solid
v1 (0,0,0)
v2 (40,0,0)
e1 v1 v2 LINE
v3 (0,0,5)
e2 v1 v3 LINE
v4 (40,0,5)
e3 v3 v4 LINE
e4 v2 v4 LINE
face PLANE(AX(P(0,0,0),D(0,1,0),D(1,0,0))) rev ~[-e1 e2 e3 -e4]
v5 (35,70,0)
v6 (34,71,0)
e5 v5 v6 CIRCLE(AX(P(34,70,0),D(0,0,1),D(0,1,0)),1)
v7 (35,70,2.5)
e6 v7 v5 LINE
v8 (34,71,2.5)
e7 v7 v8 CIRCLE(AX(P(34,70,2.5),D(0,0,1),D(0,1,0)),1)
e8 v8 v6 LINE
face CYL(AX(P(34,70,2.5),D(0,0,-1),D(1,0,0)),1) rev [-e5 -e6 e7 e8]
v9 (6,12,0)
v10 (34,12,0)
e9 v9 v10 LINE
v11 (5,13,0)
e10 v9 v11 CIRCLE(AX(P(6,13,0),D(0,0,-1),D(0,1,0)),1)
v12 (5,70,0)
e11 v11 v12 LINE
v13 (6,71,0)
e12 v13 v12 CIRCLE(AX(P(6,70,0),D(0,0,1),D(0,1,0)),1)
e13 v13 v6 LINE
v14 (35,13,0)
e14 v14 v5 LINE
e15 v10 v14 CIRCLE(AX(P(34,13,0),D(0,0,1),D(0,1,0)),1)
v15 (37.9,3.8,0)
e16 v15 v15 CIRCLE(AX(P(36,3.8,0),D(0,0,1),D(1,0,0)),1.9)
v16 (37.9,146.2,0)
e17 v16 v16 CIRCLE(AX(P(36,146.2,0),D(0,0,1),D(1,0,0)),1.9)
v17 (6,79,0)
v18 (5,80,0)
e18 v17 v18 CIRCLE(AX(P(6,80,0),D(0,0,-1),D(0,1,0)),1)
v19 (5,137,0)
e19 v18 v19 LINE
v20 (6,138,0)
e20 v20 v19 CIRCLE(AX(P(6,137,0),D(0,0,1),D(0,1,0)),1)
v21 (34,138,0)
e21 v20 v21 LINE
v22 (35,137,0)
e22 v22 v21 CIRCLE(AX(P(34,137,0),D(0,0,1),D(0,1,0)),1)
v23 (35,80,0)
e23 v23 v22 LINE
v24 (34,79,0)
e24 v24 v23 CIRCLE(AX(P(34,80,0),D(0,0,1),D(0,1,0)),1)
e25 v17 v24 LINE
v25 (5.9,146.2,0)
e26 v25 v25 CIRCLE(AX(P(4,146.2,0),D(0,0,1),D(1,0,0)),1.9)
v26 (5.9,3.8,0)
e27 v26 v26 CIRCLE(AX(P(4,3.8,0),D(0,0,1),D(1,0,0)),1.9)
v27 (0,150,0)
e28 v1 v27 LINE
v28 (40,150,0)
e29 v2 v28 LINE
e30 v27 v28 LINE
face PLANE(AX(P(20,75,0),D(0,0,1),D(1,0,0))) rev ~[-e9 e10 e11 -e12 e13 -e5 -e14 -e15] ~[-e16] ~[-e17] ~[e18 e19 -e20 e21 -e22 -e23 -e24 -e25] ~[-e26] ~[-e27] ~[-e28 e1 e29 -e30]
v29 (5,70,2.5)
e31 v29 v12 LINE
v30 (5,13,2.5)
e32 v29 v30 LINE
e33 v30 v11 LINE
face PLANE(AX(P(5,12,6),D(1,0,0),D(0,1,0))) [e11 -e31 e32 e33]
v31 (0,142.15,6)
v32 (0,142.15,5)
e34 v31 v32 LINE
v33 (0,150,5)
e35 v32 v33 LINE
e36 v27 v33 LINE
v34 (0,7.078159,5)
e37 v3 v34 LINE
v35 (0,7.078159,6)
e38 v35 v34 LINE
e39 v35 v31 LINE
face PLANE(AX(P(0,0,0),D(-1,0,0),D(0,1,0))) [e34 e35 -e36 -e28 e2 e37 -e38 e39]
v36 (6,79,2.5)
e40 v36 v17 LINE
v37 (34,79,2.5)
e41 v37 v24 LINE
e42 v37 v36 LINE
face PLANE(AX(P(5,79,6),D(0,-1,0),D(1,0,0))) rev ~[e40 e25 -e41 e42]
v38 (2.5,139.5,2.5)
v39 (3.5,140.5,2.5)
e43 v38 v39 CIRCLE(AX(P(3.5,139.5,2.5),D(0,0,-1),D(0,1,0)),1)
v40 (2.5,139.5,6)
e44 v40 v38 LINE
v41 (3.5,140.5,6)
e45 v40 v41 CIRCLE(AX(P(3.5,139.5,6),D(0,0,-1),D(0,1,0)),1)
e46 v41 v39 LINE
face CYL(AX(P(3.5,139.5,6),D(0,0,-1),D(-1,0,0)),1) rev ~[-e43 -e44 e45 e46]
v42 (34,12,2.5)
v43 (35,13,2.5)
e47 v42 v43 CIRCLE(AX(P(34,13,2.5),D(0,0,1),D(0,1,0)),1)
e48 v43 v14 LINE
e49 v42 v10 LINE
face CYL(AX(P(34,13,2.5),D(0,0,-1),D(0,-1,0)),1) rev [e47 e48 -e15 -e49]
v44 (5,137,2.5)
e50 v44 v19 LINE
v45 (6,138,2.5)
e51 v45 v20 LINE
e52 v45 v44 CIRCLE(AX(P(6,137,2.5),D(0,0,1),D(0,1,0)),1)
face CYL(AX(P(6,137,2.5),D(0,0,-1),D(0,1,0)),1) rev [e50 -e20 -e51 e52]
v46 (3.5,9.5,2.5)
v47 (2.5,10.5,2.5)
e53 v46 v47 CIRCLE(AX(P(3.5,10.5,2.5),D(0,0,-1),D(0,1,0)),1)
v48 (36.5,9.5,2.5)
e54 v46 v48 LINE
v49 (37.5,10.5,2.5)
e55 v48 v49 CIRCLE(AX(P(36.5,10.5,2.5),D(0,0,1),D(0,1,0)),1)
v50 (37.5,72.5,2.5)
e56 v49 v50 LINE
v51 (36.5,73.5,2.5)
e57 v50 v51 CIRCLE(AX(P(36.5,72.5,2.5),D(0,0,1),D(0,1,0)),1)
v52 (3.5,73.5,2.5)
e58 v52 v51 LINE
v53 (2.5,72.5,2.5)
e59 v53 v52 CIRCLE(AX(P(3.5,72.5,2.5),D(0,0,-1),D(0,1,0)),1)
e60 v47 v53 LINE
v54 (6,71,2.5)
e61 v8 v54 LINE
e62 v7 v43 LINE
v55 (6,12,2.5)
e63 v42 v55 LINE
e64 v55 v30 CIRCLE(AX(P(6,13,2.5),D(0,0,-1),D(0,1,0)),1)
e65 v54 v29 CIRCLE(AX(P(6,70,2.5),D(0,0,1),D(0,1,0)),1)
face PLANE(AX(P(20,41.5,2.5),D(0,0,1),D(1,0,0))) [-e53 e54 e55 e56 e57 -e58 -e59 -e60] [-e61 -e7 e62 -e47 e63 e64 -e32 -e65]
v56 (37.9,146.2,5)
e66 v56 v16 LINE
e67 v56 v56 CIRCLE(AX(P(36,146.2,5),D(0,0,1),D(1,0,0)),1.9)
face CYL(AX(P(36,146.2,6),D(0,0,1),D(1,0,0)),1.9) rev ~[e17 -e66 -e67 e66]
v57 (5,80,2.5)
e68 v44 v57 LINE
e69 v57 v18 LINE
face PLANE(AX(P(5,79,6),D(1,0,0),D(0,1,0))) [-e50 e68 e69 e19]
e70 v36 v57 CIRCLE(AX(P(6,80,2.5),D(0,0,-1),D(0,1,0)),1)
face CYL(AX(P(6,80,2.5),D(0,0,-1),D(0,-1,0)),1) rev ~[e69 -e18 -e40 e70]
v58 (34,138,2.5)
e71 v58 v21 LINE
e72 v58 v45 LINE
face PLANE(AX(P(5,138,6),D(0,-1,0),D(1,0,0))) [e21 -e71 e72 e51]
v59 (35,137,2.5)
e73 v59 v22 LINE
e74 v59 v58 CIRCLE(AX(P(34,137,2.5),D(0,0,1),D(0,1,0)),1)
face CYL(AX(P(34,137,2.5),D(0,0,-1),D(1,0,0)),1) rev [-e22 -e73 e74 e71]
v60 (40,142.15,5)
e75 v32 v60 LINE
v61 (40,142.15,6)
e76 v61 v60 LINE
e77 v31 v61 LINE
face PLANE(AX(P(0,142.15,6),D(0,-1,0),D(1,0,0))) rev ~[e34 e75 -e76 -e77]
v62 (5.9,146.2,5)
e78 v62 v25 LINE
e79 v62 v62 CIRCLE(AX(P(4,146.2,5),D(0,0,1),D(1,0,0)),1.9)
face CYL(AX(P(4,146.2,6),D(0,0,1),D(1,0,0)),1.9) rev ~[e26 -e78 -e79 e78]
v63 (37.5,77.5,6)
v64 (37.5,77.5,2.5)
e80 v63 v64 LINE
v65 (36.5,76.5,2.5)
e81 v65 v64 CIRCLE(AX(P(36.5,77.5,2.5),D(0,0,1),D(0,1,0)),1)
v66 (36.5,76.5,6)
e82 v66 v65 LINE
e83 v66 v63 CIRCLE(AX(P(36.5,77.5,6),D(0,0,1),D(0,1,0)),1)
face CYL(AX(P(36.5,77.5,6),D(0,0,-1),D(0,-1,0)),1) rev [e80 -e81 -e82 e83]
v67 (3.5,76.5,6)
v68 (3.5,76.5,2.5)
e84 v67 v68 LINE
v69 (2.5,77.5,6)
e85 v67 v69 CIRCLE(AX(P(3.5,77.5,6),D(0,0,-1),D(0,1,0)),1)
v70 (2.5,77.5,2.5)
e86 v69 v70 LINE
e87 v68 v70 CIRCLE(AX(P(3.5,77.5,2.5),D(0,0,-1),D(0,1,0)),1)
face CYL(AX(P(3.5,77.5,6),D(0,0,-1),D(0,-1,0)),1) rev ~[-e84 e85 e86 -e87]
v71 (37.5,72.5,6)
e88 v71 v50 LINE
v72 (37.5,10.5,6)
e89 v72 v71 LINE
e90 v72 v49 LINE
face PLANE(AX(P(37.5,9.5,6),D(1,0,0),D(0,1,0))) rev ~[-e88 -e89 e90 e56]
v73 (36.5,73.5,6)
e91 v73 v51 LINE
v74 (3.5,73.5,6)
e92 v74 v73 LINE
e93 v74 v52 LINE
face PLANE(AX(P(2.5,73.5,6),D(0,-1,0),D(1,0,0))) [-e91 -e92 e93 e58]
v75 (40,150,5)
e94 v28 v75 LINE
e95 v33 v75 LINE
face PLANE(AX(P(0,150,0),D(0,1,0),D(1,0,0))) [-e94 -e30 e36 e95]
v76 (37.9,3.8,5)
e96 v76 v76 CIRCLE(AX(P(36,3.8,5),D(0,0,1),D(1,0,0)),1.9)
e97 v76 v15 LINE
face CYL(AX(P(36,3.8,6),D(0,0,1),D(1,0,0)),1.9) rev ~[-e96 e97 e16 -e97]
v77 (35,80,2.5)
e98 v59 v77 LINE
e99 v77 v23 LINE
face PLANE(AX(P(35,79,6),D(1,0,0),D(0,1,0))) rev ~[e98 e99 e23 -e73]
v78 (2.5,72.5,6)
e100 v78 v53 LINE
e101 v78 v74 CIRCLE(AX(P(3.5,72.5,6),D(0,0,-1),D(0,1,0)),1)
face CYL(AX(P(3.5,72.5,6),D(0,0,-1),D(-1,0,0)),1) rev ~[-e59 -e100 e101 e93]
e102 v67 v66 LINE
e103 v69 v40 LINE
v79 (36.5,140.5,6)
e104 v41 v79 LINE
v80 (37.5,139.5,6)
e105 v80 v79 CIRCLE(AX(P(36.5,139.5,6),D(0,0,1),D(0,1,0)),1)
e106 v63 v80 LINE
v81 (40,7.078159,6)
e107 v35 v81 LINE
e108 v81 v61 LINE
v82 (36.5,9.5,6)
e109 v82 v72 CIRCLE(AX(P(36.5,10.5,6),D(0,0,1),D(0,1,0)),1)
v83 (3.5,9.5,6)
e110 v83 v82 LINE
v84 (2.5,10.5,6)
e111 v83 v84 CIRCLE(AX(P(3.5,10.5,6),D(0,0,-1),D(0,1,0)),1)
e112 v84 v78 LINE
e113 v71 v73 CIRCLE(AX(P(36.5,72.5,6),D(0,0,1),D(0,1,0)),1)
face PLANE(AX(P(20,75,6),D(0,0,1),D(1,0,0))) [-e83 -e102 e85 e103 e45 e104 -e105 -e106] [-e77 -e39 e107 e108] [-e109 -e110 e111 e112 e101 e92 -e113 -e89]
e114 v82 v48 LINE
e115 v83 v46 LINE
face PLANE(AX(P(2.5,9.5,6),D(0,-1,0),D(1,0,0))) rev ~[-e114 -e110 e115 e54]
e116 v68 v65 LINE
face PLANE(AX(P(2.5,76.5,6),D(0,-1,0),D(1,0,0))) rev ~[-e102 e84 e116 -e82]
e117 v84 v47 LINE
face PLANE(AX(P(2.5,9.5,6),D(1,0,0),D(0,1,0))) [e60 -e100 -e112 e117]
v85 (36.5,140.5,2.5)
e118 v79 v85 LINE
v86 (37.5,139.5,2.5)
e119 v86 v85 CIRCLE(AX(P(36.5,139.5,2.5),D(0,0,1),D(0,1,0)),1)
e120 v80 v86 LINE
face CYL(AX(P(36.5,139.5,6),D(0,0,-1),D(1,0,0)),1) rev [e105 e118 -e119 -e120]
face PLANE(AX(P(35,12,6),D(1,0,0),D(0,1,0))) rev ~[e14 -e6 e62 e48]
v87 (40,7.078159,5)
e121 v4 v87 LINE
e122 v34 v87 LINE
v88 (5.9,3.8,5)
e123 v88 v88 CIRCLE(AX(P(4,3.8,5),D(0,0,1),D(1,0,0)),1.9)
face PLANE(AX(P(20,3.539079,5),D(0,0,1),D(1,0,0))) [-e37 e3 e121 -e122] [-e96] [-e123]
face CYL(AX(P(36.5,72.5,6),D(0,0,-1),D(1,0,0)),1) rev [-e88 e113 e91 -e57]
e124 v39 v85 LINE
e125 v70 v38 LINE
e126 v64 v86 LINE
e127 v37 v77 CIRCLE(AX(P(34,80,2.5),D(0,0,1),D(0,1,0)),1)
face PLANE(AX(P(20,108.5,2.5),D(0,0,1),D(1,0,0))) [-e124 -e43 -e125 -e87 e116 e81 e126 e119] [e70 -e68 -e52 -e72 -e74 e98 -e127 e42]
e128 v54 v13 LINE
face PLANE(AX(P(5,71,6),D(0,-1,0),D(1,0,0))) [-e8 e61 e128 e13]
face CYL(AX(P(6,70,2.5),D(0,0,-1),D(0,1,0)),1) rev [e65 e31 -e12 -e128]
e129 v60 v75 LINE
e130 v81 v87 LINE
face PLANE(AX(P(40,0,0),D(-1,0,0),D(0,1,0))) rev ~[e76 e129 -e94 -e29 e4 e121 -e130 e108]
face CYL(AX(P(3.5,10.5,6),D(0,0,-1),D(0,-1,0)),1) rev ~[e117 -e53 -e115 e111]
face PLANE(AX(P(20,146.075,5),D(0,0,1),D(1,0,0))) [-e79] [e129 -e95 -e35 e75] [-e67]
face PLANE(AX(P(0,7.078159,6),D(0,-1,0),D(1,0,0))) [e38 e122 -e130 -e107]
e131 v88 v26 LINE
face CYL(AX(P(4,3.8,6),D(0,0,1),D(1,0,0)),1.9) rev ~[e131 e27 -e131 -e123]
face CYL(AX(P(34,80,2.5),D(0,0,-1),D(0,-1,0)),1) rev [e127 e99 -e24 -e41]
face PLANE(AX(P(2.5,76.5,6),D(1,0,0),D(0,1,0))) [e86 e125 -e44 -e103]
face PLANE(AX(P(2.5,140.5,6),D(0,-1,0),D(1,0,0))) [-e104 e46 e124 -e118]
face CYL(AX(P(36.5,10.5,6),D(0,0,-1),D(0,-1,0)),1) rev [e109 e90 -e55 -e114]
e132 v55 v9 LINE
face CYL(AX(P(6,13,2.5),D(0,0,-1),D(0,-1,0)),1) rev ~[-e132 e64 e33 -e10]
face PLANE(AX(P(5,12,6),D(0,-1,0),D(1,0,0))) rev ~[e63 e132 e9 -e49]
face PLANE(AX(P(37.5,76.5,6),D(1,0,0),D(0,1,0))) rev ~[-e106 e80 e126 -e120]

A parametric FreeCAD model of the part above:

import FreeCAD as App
import Part
import Sketcher

V = App.Vector


def edges_at(feature, points):
    """Names of the edges that pass closest to the given points."""
    edges = feature.Shape.Edges
    near = lambda p: min(range(len(edges)), key=lambda i: edges[i].distToShape(Part.Vertex(*p))[0])
    return sorted({f"Edge{near(p) + 1}" for p in points})


def add_polygon(sketch, points):
    """Adds a closed chain of lines whose ends are joined by coincident constraints."""
    first, n = sketch.GeometryCount, len(points)
    for a, b in zip(points, points[1:] + points[:1]):
        sketch.addGeometry(Part.LineSegment(App.Vector(*a, 0), App.Vector(*b, 0)), False)
    for i in range(n):
        sketch.addConstraint(Sketcher.Constraint("Coincident", first + i, 2, first + (i + 1) % n, 1))

doc = App.newDocument("Part")
body = doc.addObject("PartDesign::Body", "Body")

# Sketch on XY plane
sketch1 = doc.addObject("Sketcher::SketchObject", "Sketch")
body.addObject(sketch1)
sketch1.AttachmentSupport = (doc.XY_Plane, [""])
sketch1.MapMode = "FlatFace"
add_polygon(sketch1, [(0, 150), (0, 0), (40, 0), (40, 150)])  # lines 0-3
sketch1.addConstraint([
    Sketcher.Constraint("Vertical", 0),
    Sketcher.Constraint("Horizontal", 1),
    Sketcher.Constraint("Vertical", 2),
    Sketcher.Constraint("Horizontal", 3),
    Sketcher.Constraint("Coincident", 0, 2, -1, 1),
    Sketcher.Constraint("DistanceX", 1, 1, 1, 2, 40.0),
    Sketcher.Constraint("DistanceY", 0, 2, 0, 1, 150.0),
])
pad1 = doc.addObject("PartDesign::Pad", "Pad")
body.addObject(pad1)
pad1.Profile = sketch1
pad1.Length = 6

# Sketch on XY plane
sketch2 = doc.addObject("Sketcher::SketchObject", "Sketch001")
body.addObject(sketch2)
sketch2.AttachmentSupport = (doc.XY_Plane, [""])
sketch2.MapMode = "FlatFace"
sketch2.AttachmentOffset = App.Placement(V(0, 0, 6), App.Rotation())
sketch2.addGeometry([
    Part.Circle(V(36, 146.2, 0), V(0, 0, 1), 1.9),
    Part.Circle(V(4, 146.2, 0), V(0, 0, 1), 1.9),
    Part.Circle(V(4, 3.8, 0), V(0, 0, 1), 1.9),
    Part.Circle(V(36, 3.8, 0), V(0, 0, 1), 1.9),
], False)
sketch2.addConstraint([
    Sketcher.Constraint("Equal", 0, 1),
    Sketcher.Constraint("Equal", 1, 2),
    Sketcher.Constraint("Equal", 2, 3),
    Sketcher.Constraint("Horizontal", 0, 3, 1, 3),
    Sketcher.Constraint("Horizontal", 2, 3, 3, 3),
    Sketcher.Constraint("Vertical", 1, 3, 2, 3),
    Sketcher.Constraint("Vertical", 0, 3, 3, 3),
    Sketcher.Constraint("Diameter", 0, 3.8),
    Sketcher.Constraint("DistanceX", -1, 1, 0, 3, 36.0),
    Sketcher.Constraint("DistanceX", -1, 1, 1, 3, 4.0),
    Sketcher.Constraint("DistanceY", -1, 1, 0, 3, 146.2),
    Sketcher.Constraint("DistanceY", -1, 1, 2, 3, 3.8),
])
pocket1 = doc.addObject("PartDesign::Pocket", "Pocket")
body.addObject(pocket1)
pocket1.Profile = sketch2
pocket1.Type = "ThroughAll"

# Sketch on XY plane
sketch3 = doc.addObject("Sketcher::SketchObject", "Sketch002")
body.addObject(sketch3)
sketch3.AttachmentSupport = (doc.XY_Plane, [""])
sketch3.MapMode = "FlatFace"
sketch3.AttachmentOffset = App.Placement(V(0, 0, 6), App.Rotation())
add_polygon(sketch3, [(5, 138), (5, 79), (35, 79), (35, 138)])  # lines 0-3
add_polygon(sketch3, [(5, 71), (5, 12), (35, 12), (35, 71)])  # lines 4-7
sketch3.addConstraint([
    Sketcher.Constraint("Vertical", 0),
    Sketcher.Constraint("Horizontal", 1),
    Sketcher.Constraint("Vertical", 2),
    Sketcher.Constraint("Horizontal", 3),
    Sketcher.Constraint("Vertical", 4),
    Sketcher.Constraint("Horizontal", 5),
    Sketcher.Constraint("Vertical", 6),
    Sketcher.Constraint("Horizontal", 7),
    Sketcher.Constraint("Vertical", 3, 2, 4, 2),
    Sketcher.Constraint("Vertical", 2, 2, 5, 2),
    Sketcher.Constraint("Equal", 2, 4),
    Sketcher.Constraint("DistanceX", 1, 1, 1, 2, 30.0),
    Sketcher.Constraint("DistanceY", 0, 2, 0, 1, 59.0),
    Sketcher.Constraint("DistanceX", -1, 1, 0, 2, 5.0),
    Sketcher.Constraint("DistanceY", -1, 1, 0, 2, 79.0),
    Sketcher.Constraint("DistanceY", -1, 1, 4, 2, 12.0),
])
pocket2 = doc.addObject("PartDesign::Pocket", "Pocket001")
body.addObject(pocket2)
pocket2.Profile = sketch3
pocket2.Type = "ThroughAll"

# Sketch on XY plane
sketch4 = doc.addObject("Sketcher::SketchObject", "Sketch003")
body.addObject(sketch4)
sketch4.AttachmentSupport = (doc.XY_Plane, [""])
sketch4.MapMode = "FlatFace"
sketch4.AttachmentOffset = App.Placement(V(0, 0, 6), App.Rotation())
add_polygon(sketch4, [(2, 140), (2, 76), (38, 76), (38, 140)])  # lines 0-3
add_polygon(sketch4, [(2, 74), (2, 10), (38, 10), (38, 74)])  # lines 4-7
sketch4.addConstraint([
    Sketcher.Constraint("Vertical", 0),
    Sketcher.Constraint("Horizontal", 1),
    Sketcher.Constraint("Vertical", 2),
    Sketcher.Constraint("Horizontal", 3),
    Sketcher.Constraint("Vertical", 4),
    Sketcher.Constraint("Horizontal", 5),
    Sketcher.Constraint("Vertical", 6),
    Sketcher.Constraint("Horizontal", 7),
    Sketcher.Constraint("Vertical", 3, 2, 4, 2),
    Sketcher.Constraint("Vertical", 2, 2, 5, 2),
    Sketcher.Constraint("Equal", 2, 4),
    Sketcher.Constraint("DistanceX", 1, 1, 1, 2, 35.0),
    Sketcher.Constraint("DistanceY", 0, 2, 0, 1, 64.0),
    Sketcher.Constraint("DistanceY", 4, 2, 0, 2, 67.0),
    Sketcher.Constraint("DistanceX", -1, 1, 0, 2, 2.5),
    Sketcher.Constraint("DistanceY", -1, 1, 0, 2, 76.5),
])
pocket3 = doc.addObject("PartDesign::Pocket", "Pocket002")
body.addObject(pocket3)
pocket3.Profile = sketch4
pocket3.Length = 3.5

# Sketch on XY plane
sketch5 = doc.addObject("Sketcher::SketchObject", "Sketch004")
body.addObject(sketch5)
sketch5.AttachmentSupport = (doc.XY_Plane, [""])
sketch5.MapMode = "FlatFace"
sketch5.AttachmentOffset = App.Placement(V(0, 0, 6), App.Rotation())
add_polygon(sketch5, [(0, 7), (0, 0), (40, 0), (40, 7)])  # lines 0-3
add_polygon(sketch5, [(0, 150), (0, 142), (40, 142), (40, 150)])  # lines 4-7
sketch5.addConstraint([
    Sketcher.Constraint("Vertical", 0),
    Sketcher.Constraint("Horizontal", 1),
    Sketcher.Constraint("Vertical", 2),
    Sketcher.Constraint("Horizontal", 3),
    Sketcher.Constraint("Vertical", 4),
    Sketcher.Constraint("Horizontal", 5),
    Sketcher.Constraint("Vertical", 6),
    Sketcher.Constraint("Horizontal", 7),
    Sketcher.Constraint("Coincident", 0, 2, -1, 1),
    Sketcher.Constraint("PointOnObject", 4, 2, -2),
    Sketcher.Constraint("Vertical", 2, 2, 5, 2),
    Sketcher.Constraint("DistanceX", 1, 1, 1, 2, 40.0),
    Sketcher.Constraint("DistanceY", -1, 1, 6, 2, 150.0),
    Sketcher.Constraint("DistanceY", 4, 2, 4, 1, 7.85),
    Sketcher.Constraint("DistanceY", 0, 2, 0, 1, 7.078159),
])
pocket4 = doc.addObject("PartDesign::Pocket", "Pocket003")
body.addObject(pocket4)
pocket4.Profile = sketch5
pocket4.Length = 1
doc.recompute()

fillet = doc.addObject("PartDesign::Fillet", "Fillet")
body.addObject(fillet)
fillet.Base = (pocket4, edges_at(pocket4, [
    (35, 138, 1.25),
    (35, 79, 1.25),
    (5, 79, 1.25),
    (5, 138, 1.25),
    (35, 71, 1.25),
    (35, 12, 1.25),
    (5, 12, 1.25),
    (5, 71, 1.25),
    (2.5, 76.5, 4.25),
    (2.5, 140.5, 4.25),
    (37.5, 140.5, 4.25),
    (37.5, 76.5, 4.25),
    (2.5, 9.5, 4.25),
    (2.5, 73.5, 4.25),
    (37.5, 73.5, 4.25),
    (37.5, 9.5, 4.25),
]))
fillet.Radius = 1

doc.recompute()
